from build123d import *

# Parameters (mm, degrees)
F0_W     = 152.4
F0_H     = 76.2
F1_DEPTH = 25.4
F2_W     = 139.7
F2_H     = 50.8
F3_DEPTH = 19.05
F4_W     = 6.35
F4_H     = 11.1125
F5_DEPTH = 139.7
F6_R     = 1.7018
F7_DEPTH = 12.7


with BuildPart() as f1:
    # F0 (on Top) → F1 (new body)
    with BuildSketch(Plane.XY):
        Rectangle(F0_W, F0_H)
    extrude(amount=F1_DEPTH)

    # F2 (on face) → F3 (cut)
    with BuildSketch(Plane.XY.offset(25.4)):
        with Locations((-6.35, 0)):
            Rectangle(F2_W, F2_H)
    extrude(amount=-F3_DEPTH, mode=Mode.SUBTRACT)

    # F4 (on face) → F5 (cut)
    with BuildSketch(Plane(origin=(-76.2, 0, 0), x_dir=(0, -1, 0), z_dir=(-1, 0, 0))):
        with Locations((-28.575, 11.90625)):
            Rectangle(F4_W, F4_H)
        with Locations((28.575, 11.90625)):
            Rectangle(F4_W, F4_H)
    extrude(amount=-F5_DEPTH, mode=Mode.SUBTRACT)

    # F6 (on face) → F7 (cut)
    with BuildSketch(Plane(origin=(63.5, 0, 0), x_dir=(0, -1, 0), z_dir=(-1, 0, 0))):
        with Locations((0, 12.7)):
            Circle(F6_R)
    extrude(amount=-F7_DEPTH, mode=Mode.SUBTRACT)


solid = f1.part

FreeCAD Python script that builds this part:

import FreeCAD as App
import Part
import Sketcher

V = App.Vector
Q = App.Units.Quantity

doc = App.newDocument("Part")
body = doc.addObject("PartDesign::Body", "Body")

# Sketch on XY plane
sketch1 = body.newObject("Sketcher::SketchObject", "Sketch")
sketch1.AttachmentSupport = (doc.getObject("XY_Plane"), [""])
sketch1.MapMode = "FlatFace"
sketch1.addGeometry([
    Part.LineSegment(V(-76, 38, 0), V(-76, -38, 0)),
    Part.LineSegment(V(-76, -38, 0), V(76, -38, 0)),
    Part.LineSegment(V(76, -38, 0), V(76, 38, 0)),
    Part.LineSegment(V(76, 38, 0), V(-76, 38, 0)),
], False)
sketch1.addConstraint([
    Sketcher.Constraint("Coincident", 0, 2, 1, 1),
    Sketcher.Constraint("Coincident", 1, 2, 2, 1),
    Sketcher.Constraint("Coincident", 2, 2, 3, 1),
    Sketcher.Constraint("Coincident", 3, 2, 0, 1),
    Sketcher.Constraint("Vertical", 0),
    Sketcher.Constraint("Horizontal", 1),
    Sketcher.Constraint("Vertical", 2),
    Sketcher.Constraint("Horizontal", 3),
    Sketcher.Constraint("Symmetric", 0, 2, 2, 2, -1, 1),
    Sketcher.Constraint("DistanceX", 1, 1, 1, 2, Q("6 in")),
    Sketcher.Constraint("DistanceY", 0, 2, 0, 1, Q("3 in")),
])
pad1 = body.newObject("PartDesign::Pad", "Pad")
pad1.Profile = sketch1
pad1.Length = Q("1 in")

# Sketch on XY plane
sketch2 = body.newObject("Sketcher::SketchObject", "Sketch001")
sketch2.AttachmentSupport = (doc.getObject("XY_Plane"), [""])
sketch2.MapMode = "FlatFace"
sketch2.AttachmentOffset = App.Placement(V(0, 0, 1 * 25.4), App.Rotation())
sketch2.addGeometry([
    Part.LineSegment(V(-76, 25, 0), V(-76, -25, 0)),
    Part.LineSegment(V(-76, -25, 0), V(64, -25, 0)),
    Part.LineSegment(V(64, -25, 0), V(64, 25, 0)),
    Part.LineSegment(V(64, 25, 0), V(-76, 25, 0)),
], False)
sketch2.addConstraint([
    Sketcher.Constraint("Coincident", 0, 2, 1, 1),
    Sketcher.Constraint("Coincident", 1, 2, 2, 1),
    Sketcher.Constraint("Coincident", 2, 2, 3, 1),
    Sketcher.Constraint("Coincident", 3, 2, 0, 1),
    Sketcher.Constraint("Vertical", 0),
    Sketcher.Constraint("Horizontal", 1),
    Sketcher.Constraint("Vertical", 2),
    Sketcher.Constraint("Horizontal", 3),
    Sketcher.Constraint("DistanceY", 0, 2, 0, 1, Q("2 in")),
    Sketcher.Constraint("DistanceX", 1, 1, 1, 2, Q("5.5 in")),
    Sketcher.Constraint("DistanceX", 0, 2, -1, 1, Q("3 in")),
    Sketcher.Constraint("DistanceY", 0, 2, -1, 1, Q("1 in")),
])
pocket1 = body.newObject("PartDesign::Pocket", "Pocket")
pocket1.Profile = sketch2
pocket1.Length = Q("0.75 in")

# Sketch on YZ plane
sketch3 = body.newObject("Sketcher::SketchObject", "Sketch002")
sketch3.AttachmentSupport = (doc.getObject("YZ_Plane"), [""])
sketch3.MapMode = "FlatFace"
sketch3.AttachmentOffset = App.Placement(V(0, 0, -3 * 25.4), App.Rotation())
sketch3.addGeometry([
    Part.LineSegment(V(32, 17, 0), V(32, 6, 0)),  # 0
    Part.LineSegment(V(32, 6, 0), V(25, 6, 0)),  # 1
    Part.LineSegment(V(25, 6, 0), V(25, 17, 0)),  # 2
    Part.LineSegment(V(25, 17, 0), V(32, 17, 0)),  # 3
    Part.LineSegment(V(-25, 17, 0), V(-25, 6, 0)),  # 4
    Part.LineSegment(V(-25, 6, 0), V(-32, 6, 0)),  # 5
    Part.LineSegment(V(-32, 6, 0), V(-32, 17, 0)),  # 6
    Part.LineSegment(V(-32, 17, 0), V(-25, 17, 0)),  # 7
], False)
sketch3.addConstraint([
    Sketcher.Constraint("Coincident", 0, 2, 1, 1),
    Sketcher.Constraint("Coincident", 1, 2, 2, 1),
    Sketcher.Constraint("Coincident", 2, 2, 3, 1),
    Sketcher.Constraint("Coincident", 3, 2, 0, 1),
    Sketcher.Constraint("Coincident", 4, 2, 5, 1),
    Sketcher.Constraint("Coincident", 5, 2, 6, 1),
    Sketcher.Constraint("Coincident", 6, 2, 7, 1),
    Sketcher.Constraint("Coincident", 7, 2, 4, 1),
    Sketcher.Constraint("Vertical", 0),
    Sketcher.Constraint("Horizontal", 1),
    Sketcher.Constraint("Vertical", 2),
    Sketcher.Constraint("Horizontal", 3),
    Sketcher.Constraint("Vertical", 4),
    Sketcher.Constraint("Horizontal", 5),
    Sketcher.Constraint("Vertical", 6),
    Sketcher.Constraint("Horizontal", 7),
    Sketcher.Constraint("Symmetric", 1, 2, 4, 2, -2),
    Sketcher.Constraint("Symmetric", 3, 2, 6, 2, -2),
    Sketcher.Constraint("DistanceX", -1, 1, 1, 2, Q("1 in")),
    Sketcher.Constraint("DistanceX", 1, 2, 1, 1, Q("0.25 in")),
    Sketcher.Constraint("DistanceY", 0, 2, 0, 1, Q("0.4375 in")),
    Sketcher.Constraint("DistanceY", -1, 1, 0, 2, Q("0.25 in")),
])
pocket2 = body.newObject("PartDesign::Pocket", "Pocket001")
pocket2.Profile = sketch3
pocket2.Length = Q("5.5 in")
pocket2.Reversed = True

# Sketch on YZ plane
sketch4 = body.newObject("Sketcher::SketchObject", "Sketch003")
sketch4.AttachmentSupport = (doc.getObject("YZ_Plane"), [""])
sketch4.MapMode = "FlatFace"
sketch4.AttachmentOffset = App.Placement(V(0, 0, 2.5 * 25.4), App.Rotation())
sketch4.addGeometry(Part.Circle(V(0, 12.7, 0), V(0, 0, 1), 1.7), False)
sketch4.addConstraint([
    Sketcher.Constraint("PointOnObject", 0, 3, -2),
    Sketcher.Constraint("Diameter", 0, Q("0.134 in")),
    Sketcher.Constraint("DistanceY", -1, 1, 0, 3, Q("0.5 in")),
])
pocket3 = body.newObject("PartDesign::Pocket", "Pocket002")
pocket3.Profile = sketch4
pocket3.Length = Q("0.5 in")
pocket3.Reversed = True

doc.recompute()
